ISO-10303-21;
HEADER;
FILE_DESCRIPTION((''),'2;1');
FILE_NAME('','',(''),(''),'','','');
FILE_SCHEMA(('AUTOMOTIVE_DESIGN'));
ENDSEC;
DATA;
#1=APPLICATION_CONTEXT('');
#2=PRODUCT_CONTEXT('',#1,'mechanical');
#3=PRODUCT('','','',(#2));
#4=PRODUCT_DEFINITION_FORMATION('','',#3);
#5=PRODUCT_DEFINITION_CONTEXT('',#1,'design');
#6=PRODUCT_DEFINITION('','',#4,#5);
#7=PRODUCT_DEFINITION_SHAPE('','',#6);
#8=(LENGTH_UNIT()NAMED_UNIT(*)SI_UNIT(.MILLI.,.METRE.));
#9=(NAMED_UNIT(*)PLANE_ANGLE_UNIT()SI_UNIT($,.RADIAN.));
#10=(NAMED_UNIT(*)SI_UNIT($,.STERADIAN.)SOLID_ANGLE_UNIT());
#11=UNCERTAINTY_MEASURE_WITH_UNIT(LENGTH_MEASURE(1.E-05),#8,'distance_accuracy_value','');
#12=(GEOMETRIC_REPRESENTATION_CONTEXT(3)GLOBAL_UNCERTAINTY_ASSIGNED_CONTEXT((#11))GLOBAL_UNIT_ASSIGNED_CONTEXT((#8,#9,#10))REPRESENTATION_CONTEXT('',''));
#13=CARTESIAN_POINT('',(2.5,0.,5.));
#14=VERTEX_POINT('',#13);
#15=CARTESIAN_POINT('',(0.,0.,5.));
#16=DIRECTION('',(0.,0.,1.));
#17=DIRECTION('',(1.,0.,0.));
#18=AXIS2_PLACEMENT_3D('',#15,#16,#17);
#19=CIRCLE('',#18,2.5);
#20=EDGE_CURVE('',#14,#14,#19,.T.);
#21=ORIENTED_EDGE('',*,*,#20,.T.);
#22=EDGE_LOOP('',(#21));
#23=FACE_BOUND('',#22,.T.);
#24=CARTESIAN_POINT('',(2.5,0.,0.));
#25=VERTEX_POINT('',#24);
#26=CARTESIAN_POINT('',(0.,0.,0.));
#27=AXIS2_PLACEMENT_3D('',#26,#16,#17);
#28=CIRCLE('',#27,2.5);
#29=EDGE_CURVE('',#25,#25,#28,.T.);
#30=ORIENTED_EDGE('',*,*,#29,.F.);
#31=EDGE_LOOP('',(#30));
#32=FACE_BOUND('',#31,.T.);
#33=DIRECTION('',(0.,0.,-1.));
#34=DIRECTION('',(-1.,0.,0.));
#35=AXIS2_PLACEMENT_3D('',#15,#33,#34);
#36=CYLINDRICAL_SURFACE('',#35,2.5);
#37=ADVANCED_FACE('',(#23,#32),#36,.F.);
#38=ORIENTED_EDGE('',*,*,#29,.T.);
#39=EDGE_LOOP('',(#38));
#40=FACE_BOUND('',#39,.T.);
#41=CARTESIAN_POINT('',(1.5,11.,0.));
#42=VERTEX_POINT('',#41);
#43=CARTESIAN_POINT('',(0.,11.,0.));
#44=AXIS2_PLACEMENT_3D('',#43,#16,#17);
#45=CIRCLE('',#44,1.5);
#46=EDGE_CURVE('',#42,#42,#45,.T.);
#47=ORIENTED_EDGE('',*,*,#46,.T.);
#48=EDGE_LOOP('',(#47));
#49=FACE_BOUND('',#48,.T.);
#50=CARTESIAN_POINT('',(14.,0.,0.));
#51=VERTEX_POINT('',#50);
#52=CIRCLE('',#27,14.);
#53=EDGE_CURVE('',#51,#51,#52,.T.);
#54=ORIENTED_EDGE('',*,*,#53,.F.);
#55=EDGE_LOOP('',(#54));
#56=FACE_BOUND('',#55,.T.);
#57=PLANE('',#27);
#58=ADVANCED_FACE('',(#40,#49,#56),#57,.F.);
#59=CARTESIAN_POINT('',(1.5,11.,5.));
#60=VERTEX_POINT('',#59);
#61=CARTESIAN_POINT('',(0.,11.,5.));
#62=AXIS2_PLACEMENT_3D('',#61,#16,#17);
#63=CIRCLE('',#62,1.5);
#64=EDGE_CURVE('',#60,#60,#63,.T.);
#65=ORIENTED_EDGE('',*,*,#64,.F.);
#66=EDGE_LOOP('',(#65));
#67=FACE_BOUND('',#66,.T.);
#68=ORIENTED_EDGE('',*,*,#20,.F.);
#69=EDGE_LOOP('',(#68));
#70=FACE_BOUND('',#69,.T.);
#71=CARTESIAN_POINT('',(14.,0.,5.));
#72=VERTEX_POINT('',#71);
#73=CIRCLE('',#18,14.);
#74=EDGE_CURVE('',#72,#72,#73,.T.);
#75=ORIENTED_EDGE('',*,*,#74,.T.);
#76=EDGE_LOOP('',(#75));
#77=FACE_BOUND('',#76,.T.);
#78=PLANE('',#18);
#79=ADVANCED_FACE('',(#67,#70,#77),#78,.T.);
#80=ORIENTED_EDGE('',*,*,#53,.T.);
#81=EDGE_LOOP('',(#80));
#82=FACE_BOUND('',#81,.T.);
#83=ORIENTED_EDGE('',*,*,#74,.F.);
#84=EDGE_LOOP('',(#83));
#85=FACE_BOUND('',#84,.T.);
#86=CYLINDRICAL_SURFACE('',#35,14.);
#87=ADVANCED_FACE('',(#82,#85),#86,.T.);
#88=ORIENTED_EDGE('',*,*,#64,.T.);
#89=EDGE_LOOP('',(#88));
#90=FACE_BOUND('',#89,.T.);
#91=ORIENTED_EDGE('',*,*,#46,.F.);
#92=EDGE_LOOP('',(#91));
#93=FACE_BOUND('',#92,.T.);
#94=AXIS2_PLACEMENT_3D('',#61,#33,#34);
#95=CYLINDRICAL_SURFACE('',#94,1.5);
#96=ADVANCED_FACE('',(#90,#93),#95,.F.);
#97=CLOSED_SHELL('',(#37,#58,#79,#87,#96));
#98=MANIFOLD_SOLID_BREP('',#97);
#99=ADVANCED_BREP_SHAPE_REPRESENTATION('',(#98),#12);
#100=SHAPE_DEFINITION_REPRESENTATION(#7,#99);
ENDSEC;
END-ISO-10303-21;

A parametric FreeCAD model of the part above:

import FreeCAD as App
import Part
import Sketcher

V = App.Vector

doc = App.newDocument("Part")
body = doc.addObject("PartDesign::Body", "Body")

# Sketch on XY plane
sketch1 = doc.addObject("Sketcher::SketchObject", "Sketch")
body.addObject(sketch1)
sketch1.AttachmentSupport = (doc.XY_Plane, [""])
sketch1.MapMode = "FlatFace"
sketch1.addGeometry(Part.Circle(V(0, 0, 0), V(0, 0, 1), 14), False)
sketch1.addConstraint([
    Sketcher.Constraint("Coincident", 0, 3, -1, 1),
    Sketcher.Constraint("Diameter", 0, 28.0),
])
pad1 = doc.addObject("PartDesign::Pad", "Pad")
body.addObject(pad1)
pad1.Profile = sketch1
pad1.Length = 5

# Sketch on XY plane
sketch2 = doc.addObject("Sketcher::SketchObject", "Sketch001")
body.addObject(sketch2)
sketch2.AttachmentSupport = (doc.XY_Plane, [""])
sketch2.MapMode = "FlatFace"
sketch2.addGeometry([
    Part.Circle(V(0, 11, 0), V(0, 0, 1), 1.5),
    Part.Circle(V(0, 0, 0), V(0, 0, 1), 2.5),
], False)
sketch2.addConstraint([
    Sketcher.Constraint("Coincident", 1, 3, -1, 1),
    Sketcher.Constraint("PointOnObject", 0, 3, -2),
    Sketcher.Constraint("Diameter", 0, 3.0),
    Sketcher.Constraint("Diameter", 1, 5.0),
    Sketcher.Constraint("DistanceY", -1, 1, 0, 3, 11.0),
])
pocket1 = doc.addObject("PartDesign::Pocket", "Pocket")
body.addObject(pocket1)
pocket1.Profile = sketch2
pocket1.Type = "ThroughAll"
pocket1.Reversed = True

doc.recompute()
